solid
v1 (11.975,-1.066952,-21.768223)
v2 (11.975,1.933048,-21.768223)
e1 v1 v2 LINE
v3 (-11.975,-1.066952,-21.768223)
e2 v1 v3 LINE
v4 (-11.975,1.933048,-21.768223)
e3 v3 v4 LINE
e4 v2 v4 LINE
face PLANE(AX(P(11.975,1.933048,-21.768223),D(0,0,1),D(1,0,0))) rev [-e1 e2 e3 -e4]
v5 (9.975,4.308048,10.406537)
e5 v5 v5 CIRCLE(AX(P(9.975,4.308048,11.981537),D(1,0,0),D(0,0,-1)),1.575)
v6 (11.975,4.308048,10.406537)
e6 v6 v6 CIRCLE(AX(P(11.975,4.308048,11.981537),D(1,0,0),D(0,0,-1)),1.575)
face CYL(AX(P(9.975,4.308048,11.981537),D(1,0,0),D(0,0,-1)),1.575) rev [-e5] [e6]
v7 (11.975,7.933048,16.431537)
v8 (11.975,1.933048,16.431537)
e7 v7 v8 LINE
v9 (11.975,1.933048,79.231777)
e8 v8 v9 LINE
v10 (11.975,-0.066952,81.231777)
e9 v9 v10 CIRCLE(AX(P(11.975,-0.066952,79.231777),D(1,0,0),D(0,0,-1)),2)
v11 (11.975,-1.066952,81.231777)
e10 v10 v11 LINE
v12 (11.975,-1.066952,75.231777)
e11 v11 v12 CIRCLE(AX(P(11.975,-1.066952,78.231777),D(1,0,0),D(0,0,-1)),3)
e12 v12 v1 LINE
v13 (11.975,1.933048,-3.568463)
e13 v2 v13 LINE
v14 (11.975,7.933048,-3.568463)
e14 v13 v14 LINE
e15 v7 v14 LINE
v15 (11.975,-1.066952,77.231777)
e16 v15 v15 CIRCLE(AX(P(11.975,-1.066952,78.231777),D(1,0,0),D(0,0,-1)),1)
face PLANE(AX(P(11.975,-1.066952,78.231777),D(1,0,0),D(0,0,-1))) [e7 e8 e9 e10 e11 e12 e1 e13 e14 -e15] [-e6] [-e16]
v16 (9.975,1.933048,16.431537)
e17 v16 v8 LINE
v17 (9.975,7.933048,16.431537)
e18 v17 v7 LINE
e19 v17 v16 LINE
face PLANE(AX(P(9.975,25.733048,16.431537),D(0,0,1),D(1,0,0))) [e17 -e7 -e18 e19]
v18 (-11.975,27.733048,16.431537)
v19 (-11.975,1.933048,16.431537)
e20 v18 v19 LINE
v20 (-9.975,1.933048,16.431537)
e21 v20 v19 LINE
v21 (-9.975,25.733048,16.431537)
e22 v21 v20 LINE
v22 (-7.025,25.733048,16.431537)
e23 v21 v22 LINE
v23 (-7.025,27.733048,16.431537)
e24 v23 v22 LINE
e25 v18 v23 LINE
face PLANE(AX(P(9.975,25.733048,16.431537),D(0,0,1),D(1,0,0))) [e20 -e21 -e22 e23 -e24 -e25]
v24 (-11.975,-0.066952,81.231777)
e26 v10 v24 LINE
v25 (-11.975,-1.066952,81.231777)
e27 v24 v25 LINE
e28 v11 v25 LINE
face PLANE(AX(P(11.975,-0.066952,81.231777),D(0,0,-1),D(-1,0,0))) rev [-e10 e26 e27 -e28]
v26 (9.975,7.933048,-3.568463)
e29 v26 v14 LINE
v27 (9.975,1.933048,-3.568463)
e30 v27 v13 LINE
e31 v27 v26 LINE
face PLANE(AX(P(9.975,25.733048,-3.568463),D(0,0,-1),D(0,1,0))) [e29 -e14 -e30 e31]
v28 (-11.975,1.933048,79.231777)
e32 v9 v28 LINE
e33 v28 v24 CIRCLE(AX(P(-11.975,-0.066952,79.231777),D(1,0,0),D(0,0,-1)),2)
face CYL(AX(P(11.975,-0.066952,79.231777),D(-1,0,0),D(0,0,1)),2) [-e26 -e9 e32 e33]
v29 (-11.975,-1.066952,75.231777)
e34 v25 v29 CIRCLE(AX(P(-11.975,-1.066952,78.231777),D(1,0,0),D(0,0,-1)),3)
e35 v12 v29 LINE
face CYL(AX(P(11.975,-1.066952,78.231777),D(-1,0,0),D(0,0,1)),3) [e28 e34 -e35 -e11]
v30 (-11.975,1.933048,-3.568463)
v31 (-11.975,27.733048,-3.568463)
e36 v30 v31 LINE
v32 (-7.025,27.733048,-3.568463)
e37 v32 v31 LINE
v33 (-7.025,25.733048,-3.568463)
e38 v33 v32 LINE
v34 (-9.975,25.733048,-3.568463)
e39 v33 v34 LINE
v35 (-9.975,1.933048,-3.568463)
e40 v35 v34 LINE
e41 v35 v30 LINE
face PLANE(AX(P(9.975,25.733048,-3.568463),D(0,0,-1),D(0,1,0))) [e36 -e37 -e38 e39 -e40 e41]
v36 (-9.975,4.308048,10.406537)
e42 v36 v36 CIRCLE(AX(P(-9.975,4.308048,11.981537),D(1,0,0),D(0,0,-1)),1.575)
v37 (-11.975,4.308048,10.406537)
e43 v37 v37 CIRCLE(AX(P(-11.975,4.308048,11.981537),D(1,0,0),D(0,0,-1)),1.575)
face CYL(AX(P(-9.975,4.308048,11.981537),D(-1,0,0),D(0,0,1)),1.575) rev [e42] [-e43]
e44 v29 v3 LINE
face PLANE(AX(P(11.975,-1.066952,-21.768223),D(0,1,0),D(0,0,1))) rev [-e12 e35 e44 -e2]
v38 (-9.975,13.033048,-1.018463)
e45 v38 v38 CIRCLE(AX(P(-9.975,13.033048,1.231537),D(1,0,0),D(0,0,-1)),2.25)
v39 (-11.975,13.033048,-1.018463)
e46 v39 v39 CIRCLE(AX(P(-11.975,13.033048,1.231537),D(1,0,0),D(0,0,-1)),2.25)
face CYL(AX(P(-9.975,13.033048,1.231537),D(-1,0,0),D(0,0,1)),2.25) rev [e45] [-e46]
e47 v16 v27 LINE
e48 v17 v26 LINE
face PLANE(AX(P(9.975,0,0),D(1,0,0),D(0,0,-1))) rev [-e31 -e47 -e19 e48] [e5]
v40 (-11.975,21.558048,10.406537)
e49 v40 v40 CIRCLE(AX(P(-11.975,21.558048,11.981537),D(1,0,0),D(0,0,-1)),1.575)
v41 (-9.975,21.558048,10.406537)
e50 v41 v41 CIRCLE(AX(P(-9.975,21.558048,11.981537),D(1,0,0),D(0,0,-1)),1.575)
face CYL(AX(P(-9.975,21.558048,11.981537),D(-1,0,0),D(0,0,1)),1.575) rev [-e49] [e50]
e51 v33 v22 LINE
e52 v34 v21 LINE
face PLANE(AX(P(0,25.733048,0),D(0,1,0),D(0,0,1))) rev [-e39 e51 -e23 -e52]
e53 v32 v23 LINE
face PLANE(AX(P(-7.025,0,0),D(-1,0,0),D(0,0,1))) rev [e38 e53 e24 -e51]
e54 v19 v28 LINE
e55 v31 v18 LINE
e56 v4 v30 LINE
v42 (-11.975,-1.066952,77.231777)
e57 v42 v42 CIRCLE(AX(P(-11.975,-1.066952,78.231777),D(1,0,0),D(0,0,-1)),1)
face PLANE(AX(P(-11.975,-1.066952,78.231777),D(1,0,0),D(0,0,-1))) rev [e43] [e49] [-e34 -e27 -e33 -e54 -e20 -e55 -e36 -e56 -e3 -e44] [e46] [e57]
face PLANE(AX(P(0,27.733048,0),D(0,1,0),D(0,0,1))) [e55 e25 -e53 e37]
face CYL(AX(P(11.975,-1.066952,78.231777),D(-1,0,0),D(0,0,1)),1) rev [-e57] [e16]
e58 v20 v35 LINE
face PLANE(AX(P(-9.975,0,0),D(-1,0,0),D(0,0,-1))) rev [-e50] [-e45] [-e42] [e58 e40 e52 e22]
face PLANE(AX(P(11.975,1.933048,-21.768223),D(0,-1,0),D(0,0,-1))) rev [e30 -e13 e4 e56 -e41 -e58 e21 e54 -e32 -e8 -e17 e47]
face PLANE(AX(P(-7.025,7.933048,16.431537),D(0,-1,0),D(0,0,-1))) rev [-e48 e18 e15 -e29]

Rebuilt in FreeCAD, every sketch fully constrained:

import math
import FreeCAD as App
import Part
import Sketcher

V = App.Vector


def add_polygon(sketch, points):
    """Adds a closed chain of lines whose ends are joined by coincident constraints."""
    first, n = sketch.GeometryCount, len(points)
    for a, b in zip(points, points[1:] + points[:1]):
        sketch.addGeometry(Part.LineSegment(App.Vector(*a, 0), App.Vector(*b, 0)), False)
    for i in range(n):
        sketch.addConstraint(Sketcher.Constraint("Coincident", first + i, 2, first + (i + 1) % n, 1))

doc = App.newDocument("Part")
params = doc.addObject("Spreadsheet::Sheet", "Params")
for row, (alias, value) in enumerate([
    ("sketch1_diameter", "2 mm"),
    ("sketch1_radius", "2 mm"),
    ("sketch1_radius2", "3 mm"),
    ("sketch1_width", "1 mm"),
    ("sketch1_height", "101 mm"),
    ("pad1_length", "23.95 mm"),
    ("sketch2_diameter", "4.5 mm"),
    ("sketch2_diameter2", "3.15 mm"),
    ("sketch2_height", "20 mm"),
    ("sketch2_width", "23.8 mm"),
    ("pad2_length", "2 mm"),
    ("sketch3_height", "20 mm"),
    ("sketch3_width", "23.95 mm"),
    ("pad3_length", "2 mm"),
    ("sketch4_height", "20 mm"),
    ("sketch4_width", "19.8 mm"),
    ("pocket1_length", "19 mm"),
], start=1):
    params.set(f"A{row}", alias)
    params.set(f"B{row}", "=" + value)
    params.setAlias(f"B{row}", alias)

body = doc.addObject("PartDesign::Body", "Body")

# Sketch on YZ plane
sketch1 = doc.addObject("Sketcher::SketchObject", "Sketch")
body.addObject(sketch1)
sketch1.AttachmentSupport = (doc.YZ_Plane, [""])
sketch1.MapMode = "FlatFace"
sketch1.addGeometry([
    Part.LineSegment(V(1.933048, -21.768223, 0), V(1.933048, 79.231777, 0)),  # 0
    Part.ArcOfCircle(Part.Circle(V(-0.066952, 79.231777, 0), V(0, 0, 1), 2), math.radians(0), math.radians(90)),  # 1
    Part.LineSegment(V(-0.066952, 81.231777, 0), V(-1.066952, 81.231777, 0)),  # 2
    Part.ArcOfCircle(Part.Circle(V(-1.066952, 78.231777, 0), V(0, 0, 1), 3), math.radians(90), math.radians(270)),  # 3
    Part.LineSegment(V(-1.066952, 75.231777, 0), V(-1.066952, -21.768223, 0)),  # 4
    Part.LineSegment(V(-1.066952, -21.768223, 0), V(1.933048, -21.768223, 0)),  # 5
    Part.Circle(V(-1.066952, 78.231777, 0), V(0, 0, 1), 1),  # 6
], False)
sketch1.addConstraint([
    Sketcher.Constraint("Tangent", 0, 2, 1, 1),
    Sketcher.Constraint("Tangent", 1, 2, 2, 1),
    Sketcher.Constraint("Tangent", 2, 2, 3, 1),
    Sketcher.Constraint("Coincident", 3, 2, 4, 1),
    Sketcher.Constraint("Coincident", 4, 2, 5, 1),
    Sketcher.Constraint("Coincident", 5, 2, 0, 1),
    Sketcher.Constraint("Vertical", 0),
    Sketcher.Constraint("Horizontal", 2),
    Sketcher.Constraint("Vertical", 4),
    Sketcher.Constraint("Horizontal", 5),
    Sketcher.Constraint("Coincident", 6, 3, 3, 3),
    Sketcher.Constraint("Vertical", 2, 2, 3, 2),
    Sketcher.Constraint("Diameter", 6, 2.0),
    Sketcher.Constraint("Radius", 1, 2.0),
    Sketcher.Constraint("Radius", 3, 3.0),
    Sketcher.Constraint("DistanceX", 2, 2, 2, 1, 1.0),
    Sketcher.Constraint("DistanceY", 0, 1, 0, 2, 101.0),
    Sketcher.Constraint("DistanceX", 1, 3, -1, 1, 0.066952),
    Sketcher.Constraint("DistanceY", -1, 1, 1, 3, 79.231777),
])
sketch1.setExpression("Constraints[12]", "Params.sketch1_diameter")
sketch1.setExpression("Constraints[13]", "Params.sketch1_radius")
sketch1.setExpression("Constraints[14]", "Params.sketch1_radius2")
sketch1.setExpression("Constraints[15]", "Params.sketch1_width")
sketch1.setExpression("Constraints[16]", "Params.sketch1_height")
pad1 = doc.addObject("PartDesign::Pad", "Pad")
body.addObject(pad1)
pad1.Profile = sketch1
pad1.setExpression("Length", "Params.pad1_length")
pad1.Midplane = True

# Sketch on YZ plane
sketch2 = doc.addObject("Sketcher::SketchObject", "Sketch001")
body.addObject(sketch2)
sketch2.AttachmentSupport = (doc.YZ_Plane, [""])
sketch2.MapMode = "FlatFace"
sketch2.AttachmentOffset = App.Placement(V(0, 0, 11.975), App.Rotation())
add_polygon(sketch2, [(25.733048, 16.431537), (1.933048, 16.431537), (1.933048, -3.568463), (25.733048, -3.568463)])  # lines 0-3
sketch2.addGeometry(Part.Circle(V(4.308048, 11.981537, 0), V(0, 0, 1), 1.575), False)  # 4
sketch2.addGeometry(Part.Circle(V(21.558048, 11.981537, 0), V(0, 0, 1), 1.575), False)  # 5
sketch2.addGeometry(Part.Circle(V(13.033048, 1.231537, 0), V(0, 0, 1), 2.25), False)  # 6
sketch2.addConstraint([
    Sketcher.Constraint("Horizontal", 0),
    Sketcher.Constraint("Vertical", 1),
    Sketcher.Constraint("Horizontal", 2),
    Sketcher.Constraint("Vertical", 3),
    Sketcher.Constraint("Equal", 4, 5),
    Sketcher.Constraint("Horizontal", 4, 3, 5, 3),
    Sketcher.Constraint("Diameter", 6, 4.5),
    Sketcher.Constraint("Diameter", 4, 3.15),
    Sketcher.Constraint("DistanceY", 1, 2, 1, 1, 20.0),
    Sketcher.Constraint("DistanceX", 0, 2, 0, 1, 23.8),
    Sketcher.Constraint("DistanceX", 0, 2, 6, 3, 11.1),
    Sketcher.Constraint("DistanceY", 6, 3, 0, 2, 15.2),
    Sketcher.Constraint("DistanceX", 4, 3, 5, 3, 17.25),
    Sketcher.Constraint("DistanceY", 6, 3, 5, 3, 10.75),
    Sketcher.Constraint("DistanceX", 6, 3, 5, 3, 8.525),
    Sketcher.Constraint("DistanceX", -1, 1, 4, 3, 4.308048),
    Sketcher.Constraint("DistanceY", -1, 1, 4, 3, 11.981537),
])
sketch2.setExpression("Constraints[10]", "Params.sketch2_diameter")
sketch2.setExpression("Constraints[11]", "Params.sketch2_diameter2")
sketch2.setExpression("Constraints[12]", "Params.sketch2_height")
sketch2.setExpression("Constraints[13]", "Params.sketch2_width")
pad2 = doc.addObject("PartDesign::Pad", "Pad001")
body.addObject(pad2)
pad2.Profile = sketch2
pad2.setExpression("Length", "Params.pad2_length")
pad2.Reversed = True
doc.recompute()

mirrored = doc.addObject("PartDesign::Mirrored", "Mirrored")
body.addObject(mirrored)
mirrored.Originals = [pad2]
mirrored.MirrorPlane = (doc.YZ_Plane, [""])
body.Tip = mirrored

# Sketch on XZ plane
sketch3 = doc.addObject("Sketcher::SketchObject", "Sketch002")
body.addObject(sketch3)
sketch3.AttachmentSupport = (doc.XZ_Plane, [""])
sketch3.MapMode = "FlatFace"
sketch3.AttachmentOffset = App.Placement(V(0, 0, -25.733048), App.Rotation())
add_polygon(sketch3, [(-11.975, -3.568463), (-11.975, 16.431537), (11.975, 16.431537), (11.975, -3.568463)])  # lines 0-3
sketch3.addConstraint([
    Sketcher.Constraint("Vertical", 0),
    Sketcher.Constraint("Horizontal", 1),
    Sketcher.Constraint("Vertical", 2),
    Sketcher.Constraint("Horizontal", 3),
    Sketcher.Constraint("DistanceY", 0, 1, 0, 2, 20.0),
    Sketcher.Constraint("DistanceX", 1, 1, 1, 2, 23.95),
    Sketcher.Constraint("DistanceX", 0, 2, -1, 1, 11.975),
    Sketcher.Constraint("DistanceY", -1, 1, 0, 2, 16.431537),
])
sketch3.setExpression("Constraints[8]", "Params.sketch3_height")
sketch3.setExpression("Constraints[9]", "Params.sketch3_width")
pad3 = doc.addObject("PartDesign::Pad", "Pad002")
body.addObject(pad3)
pad3.Profile = sketch3
pad3.setExpression("Length", "Params.pad3_length")
pad3.Reversed = True

# Sketch on YZ plane
sketch4 = doc.addObject("Sketcher::SketchObject", "Sketch003")
body.addObject(sketch4)
sketch4.AttachmentSupport = (doc.YZ_Plane, [""])
sketch4.MapMode = "FlatFace"
sketch4.AttachmentOffset = App.Placement(V(0, 0, 11.975), App.Rotation())
add_polygon(sketch4, [(27.733048, 16.431537), (7.933048, 16.431537), (7.933048, -3.568463), (27.733048, -3.568463)])  # lines 0-3
sketch4.addConstraint([
    Sketcher.Constraint("Horizontal", 0),
    Sketcher.Constraint("Vertical", 1),
    Sketcher.Constraint("Horizontal", 2),
    Sketcher.Constraint("Vertical", 3),
    Sketcher.Constraint("DistanceY", 1, 2, 1, 1, 20.0),
    Sketcher.Constraint("DistanceX", 0, 2, 0, 1, 19.8),
    Sketcher.Constraint("DistanceX", -1, 1, 0, 2, 7.933048),
    Sketcher.Constraint("DistanceY", -1, 1, 0, 2, 16.431537),
])
sketch4.setExpression("Constraints[8]", "Params.sketch4_height")
sketch4.setExpression("Constraints[9]", "Params.sketch4_width")
pocket1 = doc.addObject("PartDesign::Pocket", "Pocket")
body.addObject(pocket1)
pocket1.Profile = sketch4
pocket1.setExpression("Length", "Params.pocket1_length")

doc.recompute()
